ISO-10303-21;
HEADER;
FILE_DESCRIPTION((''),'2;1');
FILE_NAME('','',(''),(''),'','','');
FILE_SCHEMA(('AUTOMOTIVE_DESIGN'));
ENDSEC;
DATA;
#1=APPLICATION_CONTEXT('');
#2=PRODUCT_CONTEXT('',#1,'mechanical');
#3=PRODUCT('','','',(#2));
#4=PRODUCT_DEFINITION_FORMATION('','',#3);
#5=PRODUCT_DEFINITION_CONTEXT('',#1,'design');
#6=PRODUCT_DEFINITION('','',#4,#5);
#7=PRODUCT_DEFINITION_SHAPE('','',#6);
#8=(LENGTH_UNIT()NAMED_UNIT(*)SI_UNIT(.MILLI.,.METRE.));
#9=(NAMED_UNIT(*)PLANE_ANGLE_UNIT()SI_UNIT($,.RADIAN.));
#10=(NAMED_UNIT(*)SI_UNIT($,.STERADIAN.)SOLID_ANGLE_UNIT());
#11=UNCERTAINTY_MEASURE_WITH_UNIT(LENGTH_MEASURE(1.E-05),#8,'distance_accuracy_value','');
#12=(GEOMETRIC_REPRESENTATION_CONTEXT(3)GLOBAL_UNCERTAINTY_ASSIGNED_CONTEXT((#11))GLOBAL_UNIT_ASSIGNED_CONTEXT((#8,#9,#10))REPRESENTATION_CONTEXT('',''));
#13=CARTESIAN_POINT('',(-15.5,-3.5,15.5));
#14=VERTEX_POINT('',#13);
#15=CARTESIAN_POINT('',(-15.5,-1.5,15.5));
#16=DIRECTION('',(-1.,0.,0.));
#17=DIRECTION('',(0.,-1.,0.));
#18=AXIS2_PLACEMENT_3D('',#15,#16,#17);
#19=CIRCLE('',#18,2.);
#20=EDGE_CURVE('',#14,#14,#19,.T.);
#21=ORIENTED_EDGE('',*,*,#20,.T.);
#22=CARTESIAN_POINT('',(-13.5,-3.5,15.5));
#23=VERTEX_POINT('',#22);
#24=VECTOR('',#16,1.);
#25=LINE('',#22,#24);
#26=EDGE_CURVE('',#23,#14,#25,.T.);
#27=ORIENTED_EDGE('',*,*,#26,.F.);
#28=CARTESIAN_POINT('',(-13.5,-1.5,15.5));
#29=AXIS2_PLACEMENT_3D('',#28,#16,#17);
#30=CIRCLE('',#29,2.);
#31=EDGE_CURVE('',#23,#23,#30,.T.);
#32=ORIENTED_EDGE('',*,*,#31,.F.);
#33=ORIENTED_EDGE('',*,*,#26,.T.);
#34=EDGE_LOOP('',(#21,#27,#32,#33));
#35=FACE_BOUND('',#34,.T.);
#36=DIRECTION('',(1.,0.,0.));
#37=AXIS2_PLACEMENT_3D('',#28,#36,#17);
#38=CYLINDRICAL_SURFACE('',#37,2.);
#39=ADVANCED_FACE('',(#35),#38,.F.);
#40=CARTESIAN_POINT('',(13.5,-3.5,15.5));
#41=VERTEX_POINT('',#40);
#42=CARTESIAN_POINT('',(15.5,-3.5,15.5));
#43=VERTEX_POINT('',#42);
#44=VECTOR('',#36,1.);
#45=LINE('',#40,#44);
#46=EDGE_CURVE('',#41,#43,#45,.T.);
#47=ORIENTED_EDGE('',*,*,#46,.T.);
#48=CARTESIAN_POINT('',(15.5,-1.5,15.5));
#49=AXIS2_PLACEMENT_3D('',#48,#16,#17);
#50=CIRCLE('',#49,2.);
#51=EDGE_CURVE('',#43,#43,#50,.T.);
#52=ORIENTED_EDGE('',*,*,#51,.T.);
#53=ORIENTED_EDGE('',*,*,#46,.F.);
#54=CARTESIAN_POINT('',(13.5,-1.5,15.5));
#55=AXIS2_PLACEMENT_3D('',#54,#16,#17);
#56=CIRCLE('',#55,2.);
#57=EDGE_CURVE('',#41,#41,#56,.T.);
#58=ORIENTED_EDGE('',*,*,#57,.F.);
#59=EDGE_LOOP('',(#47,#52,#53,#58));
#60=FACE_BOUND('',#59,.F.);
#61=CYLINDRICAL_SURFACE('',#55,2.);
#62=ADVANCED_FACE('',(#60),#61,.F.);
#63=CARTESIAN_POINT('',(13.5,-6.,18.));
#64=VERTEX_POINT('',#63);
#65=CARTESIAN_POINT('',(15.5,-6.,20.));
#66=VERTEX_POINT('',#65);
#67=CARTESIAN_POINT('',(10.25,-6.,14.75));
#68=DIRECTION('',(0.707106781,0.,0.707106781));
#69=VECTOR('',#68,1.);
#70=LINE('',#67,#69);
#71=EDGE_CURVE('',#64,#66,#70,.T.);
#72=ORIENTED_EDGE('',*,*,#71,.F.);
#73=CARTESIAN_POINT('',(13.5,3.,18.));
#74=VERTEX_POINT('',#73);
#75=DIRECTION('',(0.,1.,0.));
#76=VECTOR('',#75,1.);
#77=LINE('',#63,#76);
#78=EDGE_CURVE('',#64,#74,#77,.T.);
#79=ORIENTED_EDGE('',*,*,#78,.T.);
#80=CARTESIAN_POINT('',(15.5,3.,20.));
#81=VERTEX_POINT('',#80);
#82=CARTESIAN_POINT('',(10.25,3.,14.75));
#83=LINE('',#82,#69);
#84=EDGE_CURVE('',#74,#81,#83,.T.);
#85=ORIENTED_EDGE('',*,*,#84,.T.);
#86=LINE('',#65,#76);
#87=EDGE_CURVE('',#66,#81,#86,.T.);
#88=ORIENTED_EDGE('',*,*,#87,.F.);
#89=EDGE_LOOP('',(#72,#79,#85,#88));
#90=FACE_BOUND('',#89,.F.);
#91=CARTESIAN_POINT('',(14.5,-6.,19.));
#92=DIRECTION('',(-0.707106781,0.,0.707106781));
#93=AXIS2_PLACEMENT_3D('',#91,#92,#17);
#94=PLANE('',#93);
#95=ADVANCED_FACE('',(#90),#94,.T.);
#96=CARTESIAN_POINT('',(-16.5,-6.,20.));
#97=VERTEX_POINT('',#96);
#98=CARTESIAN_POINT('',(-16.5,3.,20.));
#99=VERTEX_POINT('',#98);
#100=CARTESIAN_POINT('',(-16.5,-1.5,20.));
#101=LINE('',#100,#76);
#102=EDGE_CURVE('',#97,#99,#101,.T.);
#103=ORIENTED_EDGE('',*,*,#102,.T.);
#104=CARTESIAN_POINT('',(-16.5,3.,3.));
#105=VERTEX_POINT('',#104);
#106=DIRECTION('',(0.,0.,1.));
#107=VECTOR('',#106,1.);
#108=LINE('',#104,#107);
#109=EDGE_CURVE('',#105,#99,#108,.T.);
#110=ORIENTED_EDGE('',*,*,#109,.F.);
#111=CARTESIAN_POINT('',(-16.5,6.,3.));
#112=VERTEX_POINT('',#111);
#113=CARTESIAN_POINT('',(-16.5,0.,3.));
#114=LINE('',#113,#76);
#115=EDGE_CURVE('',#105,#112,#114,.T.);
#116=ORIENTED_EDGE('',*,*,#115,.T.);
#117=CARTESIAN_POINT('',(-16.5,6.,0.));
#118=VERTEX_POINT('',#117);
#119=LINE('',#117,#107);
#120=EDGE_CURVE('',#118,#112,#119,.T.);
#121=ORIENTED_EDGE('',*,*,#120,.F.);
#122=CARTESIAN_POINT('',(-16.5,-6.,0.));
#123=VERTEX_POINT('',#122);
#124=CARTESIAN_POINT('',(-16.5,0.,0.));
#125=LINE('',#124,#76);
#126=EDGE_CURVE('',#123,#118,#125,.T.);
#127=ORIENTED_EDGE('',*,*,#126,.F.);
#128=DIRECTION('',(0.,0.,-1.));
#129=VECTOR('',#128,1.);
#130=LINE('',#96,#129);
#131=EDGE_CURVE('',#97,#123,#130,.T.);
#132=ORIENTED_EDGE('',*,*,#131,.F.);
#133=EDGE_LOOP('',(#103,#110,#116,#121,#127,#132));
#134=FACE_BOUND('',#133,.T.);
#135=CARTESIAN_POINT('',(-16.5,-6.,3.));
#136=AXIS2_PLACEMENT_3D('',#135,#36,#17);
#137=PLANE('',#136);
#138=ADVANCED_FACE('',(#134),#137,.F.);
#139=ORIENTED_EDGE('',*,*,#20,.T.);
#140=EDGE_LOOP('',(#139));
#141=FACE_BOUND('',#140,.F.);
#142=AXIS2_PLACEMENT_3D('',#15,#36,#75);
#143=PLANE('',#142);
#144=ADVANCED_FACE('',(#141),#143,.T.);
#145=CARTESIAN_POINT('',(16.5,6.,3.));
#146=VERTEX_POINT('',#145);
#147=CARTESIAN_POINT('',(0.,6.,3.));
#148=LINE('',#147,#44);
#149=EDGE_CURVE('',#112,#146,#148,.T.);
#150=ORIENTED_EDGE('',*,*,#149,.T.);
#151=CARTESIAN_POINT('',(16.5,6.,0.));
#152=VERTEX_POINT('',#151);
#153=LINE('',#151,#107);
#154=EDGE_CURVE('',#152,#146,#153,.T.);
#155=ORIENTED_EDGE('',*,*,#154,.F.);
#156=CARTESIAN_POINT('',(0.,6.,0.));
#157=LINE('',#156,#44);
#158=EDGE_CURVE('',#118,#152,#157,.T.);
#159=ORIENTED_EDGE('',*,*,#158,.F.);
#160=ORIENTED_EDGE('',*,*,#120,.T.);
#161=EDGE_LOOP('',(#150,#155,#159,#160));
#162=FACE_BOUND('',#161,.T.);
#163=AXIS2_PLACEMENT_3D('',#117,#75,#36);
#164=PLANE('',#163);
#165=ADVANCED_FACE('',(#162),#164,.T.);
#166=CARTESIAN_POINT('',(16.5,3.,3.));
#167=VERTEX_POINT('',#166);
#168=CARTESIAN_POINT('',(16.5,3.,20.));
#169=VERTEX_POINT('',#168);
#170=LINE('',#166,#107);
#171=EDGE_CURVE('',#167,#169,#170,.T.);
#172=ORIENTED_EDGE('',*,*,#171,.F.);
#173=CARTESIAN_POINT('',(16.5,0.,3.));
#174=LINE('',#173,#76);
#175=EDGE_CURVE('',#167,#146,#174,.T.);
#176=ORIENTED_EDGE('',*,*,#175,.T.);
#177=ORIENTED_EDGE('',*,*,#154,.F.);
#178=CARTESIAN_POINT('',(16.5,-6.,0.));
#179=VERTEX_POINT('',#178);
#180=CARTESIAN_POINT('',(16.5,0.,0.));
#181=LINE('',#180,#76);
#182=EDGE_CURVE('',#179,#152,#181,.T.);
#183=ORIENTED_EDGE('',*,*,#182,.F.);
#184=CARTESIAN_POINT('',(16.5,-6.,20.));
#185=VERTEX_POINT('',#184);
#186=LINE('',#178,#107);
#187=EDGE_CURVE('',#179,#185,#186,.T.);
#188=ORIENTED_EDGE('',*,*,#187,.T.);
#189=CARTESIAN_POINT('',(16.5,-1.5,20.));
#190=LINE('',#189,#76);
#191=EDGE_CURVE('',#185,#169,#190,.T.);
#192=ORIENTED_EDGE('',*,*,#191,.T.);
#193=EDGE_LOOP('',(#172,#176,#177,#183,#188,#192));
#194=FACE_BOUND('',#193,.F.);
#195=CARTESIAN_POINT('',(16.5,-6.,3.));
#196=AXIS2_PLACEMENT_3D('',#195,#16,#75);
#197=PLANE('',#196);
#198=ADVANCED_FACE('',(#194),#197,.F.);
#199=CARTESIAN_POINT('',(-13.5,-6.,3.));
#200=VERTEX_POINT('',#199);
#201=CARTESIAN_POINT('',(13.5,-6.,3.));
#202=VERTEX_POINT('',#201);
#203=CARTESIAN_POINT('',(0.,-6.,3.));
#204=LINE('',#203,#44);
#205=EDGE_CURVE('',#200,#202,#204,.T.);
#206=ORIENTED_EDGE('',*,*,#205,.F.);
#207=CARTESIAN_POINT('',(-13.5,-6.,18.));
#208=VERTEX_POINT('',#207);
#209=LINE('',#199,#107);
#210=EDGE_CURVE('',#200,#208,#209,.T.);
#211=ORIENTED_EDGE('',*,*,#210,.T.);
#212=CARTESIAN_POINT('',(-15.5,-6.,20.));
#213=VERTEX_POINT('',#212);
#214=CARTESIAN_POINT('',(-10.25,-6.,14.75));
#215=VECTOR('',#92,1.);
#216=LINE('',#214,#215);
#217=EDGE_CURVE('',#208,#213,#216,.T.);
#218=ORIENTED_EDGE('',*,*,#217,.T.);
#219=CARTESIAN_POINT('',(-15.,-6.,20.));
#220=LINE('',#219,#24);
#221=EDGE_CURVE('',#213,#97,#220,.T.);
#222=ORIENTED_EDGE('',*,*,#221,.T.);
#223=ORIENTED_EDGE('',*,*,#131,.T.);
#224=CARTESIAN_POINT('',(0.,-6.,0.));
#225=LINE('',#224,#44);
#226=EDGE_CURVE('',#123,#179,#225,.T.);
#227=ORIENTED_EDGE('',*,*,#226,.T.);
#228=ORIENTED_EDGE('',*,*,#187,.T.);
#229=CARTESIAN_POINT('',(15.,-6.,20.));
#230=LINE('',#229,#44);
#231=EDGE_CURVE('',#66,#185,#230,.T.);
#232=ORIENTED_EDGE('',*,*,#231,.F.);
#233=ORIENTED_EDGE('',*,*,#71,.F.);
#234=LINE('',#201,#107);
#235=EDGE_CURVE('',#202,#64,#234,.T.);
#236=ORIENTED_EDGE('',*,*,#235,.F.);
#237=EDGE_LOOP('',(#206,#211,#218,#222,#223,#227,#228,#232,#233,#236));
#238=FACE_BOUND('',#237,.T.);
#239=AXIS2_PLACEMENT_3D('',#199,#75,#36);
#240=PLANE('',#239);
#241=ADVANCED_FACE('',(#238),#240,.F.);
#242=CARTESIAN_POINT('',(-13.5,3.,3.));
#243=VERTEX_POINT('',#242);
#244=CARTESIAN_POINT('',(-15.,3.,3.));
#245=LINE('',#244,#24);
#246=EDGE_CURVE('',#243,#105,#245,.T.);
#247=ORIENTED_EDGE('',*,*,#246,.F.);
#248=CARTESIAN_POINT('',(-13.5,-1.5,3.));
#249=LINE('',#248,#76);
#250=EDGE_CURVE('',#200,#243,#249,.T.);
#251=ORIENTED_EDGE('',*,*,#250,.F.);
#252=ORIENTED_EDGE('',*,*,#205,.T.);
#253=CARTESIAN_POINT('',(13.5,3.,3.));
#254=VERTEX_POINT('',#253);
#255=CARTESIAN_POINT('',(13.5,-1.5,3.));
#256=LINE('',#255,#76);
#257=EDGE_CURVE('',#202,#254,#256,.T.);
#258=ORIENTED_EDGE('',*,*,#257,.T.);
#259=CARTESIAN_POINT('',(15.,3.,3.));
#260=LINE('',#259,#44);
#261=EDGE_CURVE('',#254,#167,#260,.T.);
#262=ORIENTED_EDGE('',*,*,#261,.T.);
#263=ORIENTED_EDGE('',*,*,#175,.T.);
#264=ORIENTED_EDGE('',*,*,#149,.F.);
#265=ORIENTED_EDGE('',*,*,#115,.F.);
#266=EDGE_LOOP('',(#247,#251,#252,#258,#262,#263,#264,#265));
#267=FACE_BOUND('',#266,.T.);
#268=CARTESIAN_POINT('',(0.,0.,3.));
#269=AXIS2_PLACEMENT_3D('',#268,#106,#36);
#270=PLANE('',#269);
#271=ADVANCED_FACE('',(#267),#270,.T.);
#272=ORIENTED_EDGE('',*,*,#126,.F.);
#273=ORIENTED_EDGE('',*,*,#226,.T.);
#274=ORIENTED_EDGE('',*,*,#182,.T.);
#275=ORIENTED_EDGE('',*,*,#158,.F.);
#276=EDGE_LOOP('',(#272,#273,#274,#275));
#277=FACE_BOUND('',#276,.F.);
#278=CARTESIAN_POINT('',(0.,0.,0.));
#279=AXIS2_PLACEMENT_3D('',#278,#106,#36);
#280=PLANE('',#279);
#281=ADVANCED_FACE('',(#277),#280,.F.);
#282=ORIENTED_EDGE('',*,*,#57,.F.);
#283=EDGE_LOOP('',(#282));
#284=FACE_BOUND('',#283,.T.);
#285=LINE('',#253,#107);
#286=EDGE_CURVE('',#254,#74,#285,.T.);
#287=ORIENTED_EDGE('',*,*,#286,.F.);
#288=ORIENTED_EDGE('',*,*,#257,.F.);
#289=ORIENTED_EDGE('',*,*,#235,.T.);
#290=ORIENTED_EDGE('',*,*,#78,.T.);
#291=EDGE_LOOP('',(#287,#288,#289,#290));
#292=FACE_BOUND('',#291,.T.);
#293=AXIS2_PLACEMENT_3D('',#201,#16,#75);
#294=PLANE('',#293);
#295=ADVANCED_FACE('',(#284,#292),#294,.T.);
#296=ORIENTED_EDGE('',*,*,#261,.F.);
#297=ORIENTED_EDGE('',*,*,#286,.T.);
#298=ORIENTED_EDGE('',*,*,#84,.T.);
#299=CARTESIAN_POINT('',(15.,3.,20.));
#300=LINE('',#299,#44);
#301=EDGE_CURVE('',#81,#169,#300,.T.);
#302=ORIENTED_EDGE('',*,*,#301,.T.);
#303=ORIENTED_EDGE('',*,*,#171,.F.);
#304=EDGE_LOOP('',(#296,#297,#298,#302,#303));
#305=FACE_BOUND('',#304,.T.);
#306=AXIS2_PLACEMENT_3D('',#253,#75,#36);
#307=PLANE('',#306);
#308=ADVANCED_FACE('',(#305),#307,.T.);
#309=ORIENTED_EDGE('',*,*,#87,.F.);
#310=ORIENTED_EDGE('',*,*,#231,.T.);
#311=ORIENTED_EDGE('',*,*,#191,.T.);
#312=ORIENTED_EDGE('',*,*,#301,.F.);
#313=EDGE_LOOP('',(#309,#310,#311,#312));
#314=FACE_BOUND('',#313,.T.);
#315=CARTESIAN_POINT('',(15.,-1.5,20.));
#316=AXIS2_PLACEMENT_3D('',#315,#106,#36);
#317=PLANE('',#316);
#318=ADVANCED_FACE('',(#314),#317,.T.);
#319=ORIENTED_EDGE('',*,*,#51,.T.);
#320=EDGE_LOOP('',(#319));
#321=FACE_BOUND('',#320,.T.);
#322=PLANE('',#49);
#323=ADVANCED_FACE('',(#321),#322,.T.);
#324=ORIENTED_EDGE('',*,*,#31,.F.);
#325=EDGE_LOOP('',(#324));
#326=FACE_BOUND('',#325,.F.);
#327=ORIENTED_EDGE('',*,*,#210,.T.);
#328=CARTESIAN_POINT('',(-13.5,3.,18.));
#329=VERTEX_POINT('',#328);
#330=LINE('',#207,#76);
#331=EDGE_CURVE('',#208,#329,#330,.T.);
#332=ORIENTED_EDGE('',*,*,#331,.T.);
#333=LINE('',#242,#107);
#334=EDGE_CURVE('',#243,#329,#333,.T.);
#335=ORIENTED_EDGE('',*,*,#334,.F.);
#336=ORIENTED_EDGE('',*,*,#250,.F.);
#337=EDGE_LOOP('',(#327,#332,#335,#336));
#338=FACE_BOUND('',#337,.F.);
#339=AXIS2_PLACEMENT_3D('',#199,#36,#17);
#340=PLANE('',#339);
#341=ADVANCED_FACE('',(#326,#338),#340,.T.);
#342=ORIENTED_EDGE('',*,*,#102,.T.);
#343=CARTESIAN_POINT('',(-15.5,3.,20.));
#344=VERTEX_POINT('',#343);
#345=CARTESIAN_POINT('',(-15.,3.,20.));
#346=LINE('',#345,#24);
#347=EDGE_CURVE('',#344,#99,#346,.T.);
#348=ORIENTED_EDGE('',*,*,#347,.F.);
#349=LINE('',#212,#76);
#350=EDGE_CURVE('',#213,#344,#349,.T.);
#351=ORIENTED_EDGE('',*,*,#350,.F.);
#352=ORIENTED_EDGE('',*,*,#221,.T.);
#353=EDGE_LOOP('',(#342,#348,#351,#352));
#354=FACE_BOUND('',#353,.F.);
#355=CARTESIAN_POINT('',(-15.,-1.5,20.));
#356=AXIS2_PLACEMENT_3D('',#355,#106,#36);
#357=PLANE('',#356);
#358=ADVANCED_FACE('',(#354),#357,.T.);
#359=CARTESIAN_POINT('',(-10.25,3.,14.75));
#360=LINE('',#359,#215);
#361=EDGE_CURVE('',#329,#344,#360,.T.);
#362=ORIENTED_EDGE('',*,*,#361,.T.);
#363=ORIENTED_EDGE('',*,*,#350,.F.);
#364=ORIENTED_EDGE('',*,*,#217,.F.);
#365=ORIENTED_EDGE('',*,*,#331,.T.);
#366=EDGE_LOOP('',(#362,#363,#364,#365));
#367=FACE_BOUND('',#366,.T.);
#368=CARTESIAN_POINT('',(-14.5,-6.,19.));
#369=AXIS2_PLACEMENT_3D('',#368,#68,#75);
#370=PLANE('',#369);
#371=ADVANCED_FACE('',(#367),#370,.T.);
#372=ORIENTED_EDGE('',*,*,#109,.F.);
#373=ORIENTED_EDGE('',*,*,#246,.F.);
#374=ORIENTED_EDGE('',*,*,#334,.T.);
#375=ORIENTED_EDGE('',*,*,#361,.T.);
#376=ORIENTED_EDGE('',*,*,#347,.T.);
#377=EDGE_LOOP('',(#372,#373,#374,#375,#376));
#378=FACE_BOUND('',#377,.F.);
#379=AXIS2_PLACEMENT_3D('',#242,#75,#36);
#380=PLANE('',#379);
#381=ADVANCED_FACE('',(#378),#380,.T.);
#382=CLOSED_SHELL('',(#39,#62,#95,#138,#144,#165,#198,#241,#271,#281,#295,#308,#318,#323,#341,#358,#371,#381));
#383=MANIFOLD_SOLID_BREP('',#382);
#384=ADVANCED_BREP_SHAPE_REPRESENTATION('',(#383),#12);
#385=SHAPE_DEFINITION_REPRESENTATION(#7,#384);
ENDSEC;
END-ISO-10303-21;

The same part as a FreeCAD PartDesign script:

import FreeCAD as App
import Part
import Sketcher
from FreeCAD import Vector


def edges_at(feature, points):
    """Names of the edges that pass closest to the given points."""
    edges = feature.Shape.Edges
    near = lambda p: min(range(len(edges)), key=lambda i: edges[i].distToShape(Part.Vertex(*p))[0])
    return sorted({f"Edge{near(p) + 1}" for p in points})

doc = App.newDocument("Part")
params = doc.addObject("Spreadsheet::Sheet", "Params")
for row, (alias, value) in enumerate([
    ("sketch1_width", "33 mm"),
    ("sketch1_height", "12 mm"),
    ("pad1_length", "3 mm"),
    ("sketch2_width", "3 mm"),
    ("sketch2_height", "9 mm"),
    ("pad2_length", "17 mm"),
    ("sketch3_diameter", "4 mm"),
    ("pocket1_length", "2 mm"),
    ("chamfer_size", "2 mm"),
], start=1):
    params.set(f"A{row}", alias)
    params.set(f"B{row}", "=" + value)
    params.setAlias(f"B{row}", alias)

body = doc.addObject("PartDesign::Body", "Body")

# Sketch on XY plane
sketch1 = doc.addObject("Sketcher::SketchObject", "Sketch")
body.addObject(sketch1)
sketch1.AttachmentSupport = (doc.XY_Plane, [""])
sketch1.MapMode = "FlatFace"
sketch1.addGeometry([
    Part.LineSegment(Vector(-16, 6, 0), Vector(-16, -6, 0)),
    Part.LineSegment(Vector(-16, -6, 0), Vector(16, -6, 0)),
    Part.LineSegment(Vector(16, -6, 0), Vector(16, 6, 0)),
    Part.LineSegment(Vector(16, 6, 0), Vector(-16, 6, 0)),
], False)
sketch1.addConstraint([
    Sketcher.Constraint("Coincident", 0, 2, 1, 1),
    Sketcher.Constraint("Coincident", 1, 2, 2, 1),
    Sketcher.Constraint("Coincident", 2, 2, 3, 1),
    Sketcher.Constraint("Coincident", 3, 2, 0, 1),
    Sketcher.Constraint("Vertical", 0),
    Sketcher.Constraint("Horizontal", 1),
    Sketcher.Constraint("Vertical", 2),
    Sketcher.Constraint("Horizontal", 3),
    Sketcher.Constraint("Symmetric", 0, 2, 2, 2, -1, 1),
    Sketcher.Constraint("DistanceX", 1, 1, 1, 2, 33.0),
    Sketcher.Constraint("DistanceY", 0, 2, 0, 1, 12.0),
])
sketch1.setExpression("Constraints[9]", "Params.sketch1_width")
sketch1.setExpression("Constraints[10]", "Params.sketch1_height")
pad1 = doc.addObject("PartDesign::Pad", "Pad")
body.addObject(pad1)
pad1.Profile = sketch1
pad1.setExpression("Length", "Params.pad1_length")

# Sketch on XY plane
sketch2 = doc.addObject("Sketcher::SketchObject", "Sketch001")
body.addObject(sketch2)
sketch2.AttachmentSupport = (doc.XY_Plane, [""])
sketch2.MapMode = "FlatFace"
sketch2.AttachmentOffset = App.Placement(Vector(0, 0, 3), App.Rotation())
sketch2.addGeometry([
    Part.LineSegment(Vector(13.5, 3, 0), Vector(13.5, -6, 0)),
    Part.LineSegment(Vector(13.5, -6, 0), Vector(16.5, -6, 0)),
    Part.LineSegment(Vector(16.5, -6, 0), Vector(16.5, 3, 0)),
    Part.LineSegment(Vector(16.5, 3, 0), Vector(13.5, 3, 0)),
], False)
sketch2.addConstraint([
    Sketcher.Constraint("Coincident", 0, 2, 1, 1),
    Sketcher.Constraint("Coincident", 1, 2, 2, 1),
    Sketcher.Constraint("Coincident", 2, 2, 3, 1),
    Sketcher.Constraint("Coincident", 3, 2, 0, 1),
    Sketcher.Constraint("Vertical", 0),
    Sketcher.Constraint("Horizontal", 1),
    Sketcher.Constraint("Vertical", 2),
    Sketcher.Constraint("Horizontal", 3),
    Sketcher.Constraint("DistanceX", 1, 1, 1, 2, 3.0),
    Sketcher.Constraint("DistanceY", 0, 2, 0, 1, 9.0),
    Sketcher.Constraint("DistanceY", 0, 2, -1, 1, 6.0),
    Sketcher.Constraint("DistanceX", -1, 1, 0, 2, 13.5),
])
sketch2.setExpression("Constraints[8]", "Params.sketch2_width")
sketch2.setExpression("Constraints[9]", "Params.sketch2_height")
pad2 = doc.addObject("PartDesign::Pad", "Pad001")
body.addObject(pad2)
pad2.Profile = sketch2
pad2.setExpression("Length", "Params.pad2_length")

# Sketch on YZ plane
sketch3 = doc.addObject("Sketcher::SketchObject", "Sketch002")
body.addObject(sketch3)
sketch3.AttachmentSupport = (doc.YZ_Plane, [""])
sketch3.MapMode = "FlatFace"
sketch3.AttachmentOffset = App.Placement(Vector(0, 0, 13.5), App.Rotation())
sketch3.addGeometry(Part.Circle(Vector(-1.5, 15.5, 0), Vector(0, 0, 1), 2), False)
sketch3.addConstraint([
    Sketcher.Constraint("Diameter", 0, 4.0),
    Sketcher.Constraint("DistanceX", 0, 3, -1, 1, 1.5),
    Sketcher.Constraint("DistanceY", -1, 1, 0, 3, 15.5),
])
sketch3.setExpression("Constraints[0]", "Params.sketch3_diameter")
pocket1 = doc.addObject("PartDesign::Pocket", "Pocket")
body.addObject(pocket1)
pocket1.Profile = sketch3
pocket1.setExpression("Length", "Params.pocket1_length")
pocket1.Reversed = True
doc.recompute()

chamfer = doc.addObject("PartDesign::Chamfer", "Chamfer")
body.addObject(chamfer)
chamfer.Base = (pocket1, edges_at(pocket1, [(13.5, -1.5, 20)]))
chamfer.setExpression("Size", "Params.chamfer_size")
body2 = doc.addObject("PartDesign::Body", "Body001")
doc.recompute()

body2.BaseFeature = body
doc.recompute()

mirroring = doc.addObject("Part::Mirroring", "Mirroring")
mirroring.Source = body
mirroring.Base = Vector(0, 0, 0)
mirroring.Normal = Vector(1, 0, 0)
body3 = doc.addObject("PartDesign::Body", "Body002")
body3.BaseFeature = mirroring
boolean = doc.addObject("PartDesign::Boolean", "Boolean")
body2.addObject(boolean)
boolean.Type = "Fuse"
boolean.addObjects([body3])
doc.recompute()
mirroring.Visibility = False

doc.recompute()
